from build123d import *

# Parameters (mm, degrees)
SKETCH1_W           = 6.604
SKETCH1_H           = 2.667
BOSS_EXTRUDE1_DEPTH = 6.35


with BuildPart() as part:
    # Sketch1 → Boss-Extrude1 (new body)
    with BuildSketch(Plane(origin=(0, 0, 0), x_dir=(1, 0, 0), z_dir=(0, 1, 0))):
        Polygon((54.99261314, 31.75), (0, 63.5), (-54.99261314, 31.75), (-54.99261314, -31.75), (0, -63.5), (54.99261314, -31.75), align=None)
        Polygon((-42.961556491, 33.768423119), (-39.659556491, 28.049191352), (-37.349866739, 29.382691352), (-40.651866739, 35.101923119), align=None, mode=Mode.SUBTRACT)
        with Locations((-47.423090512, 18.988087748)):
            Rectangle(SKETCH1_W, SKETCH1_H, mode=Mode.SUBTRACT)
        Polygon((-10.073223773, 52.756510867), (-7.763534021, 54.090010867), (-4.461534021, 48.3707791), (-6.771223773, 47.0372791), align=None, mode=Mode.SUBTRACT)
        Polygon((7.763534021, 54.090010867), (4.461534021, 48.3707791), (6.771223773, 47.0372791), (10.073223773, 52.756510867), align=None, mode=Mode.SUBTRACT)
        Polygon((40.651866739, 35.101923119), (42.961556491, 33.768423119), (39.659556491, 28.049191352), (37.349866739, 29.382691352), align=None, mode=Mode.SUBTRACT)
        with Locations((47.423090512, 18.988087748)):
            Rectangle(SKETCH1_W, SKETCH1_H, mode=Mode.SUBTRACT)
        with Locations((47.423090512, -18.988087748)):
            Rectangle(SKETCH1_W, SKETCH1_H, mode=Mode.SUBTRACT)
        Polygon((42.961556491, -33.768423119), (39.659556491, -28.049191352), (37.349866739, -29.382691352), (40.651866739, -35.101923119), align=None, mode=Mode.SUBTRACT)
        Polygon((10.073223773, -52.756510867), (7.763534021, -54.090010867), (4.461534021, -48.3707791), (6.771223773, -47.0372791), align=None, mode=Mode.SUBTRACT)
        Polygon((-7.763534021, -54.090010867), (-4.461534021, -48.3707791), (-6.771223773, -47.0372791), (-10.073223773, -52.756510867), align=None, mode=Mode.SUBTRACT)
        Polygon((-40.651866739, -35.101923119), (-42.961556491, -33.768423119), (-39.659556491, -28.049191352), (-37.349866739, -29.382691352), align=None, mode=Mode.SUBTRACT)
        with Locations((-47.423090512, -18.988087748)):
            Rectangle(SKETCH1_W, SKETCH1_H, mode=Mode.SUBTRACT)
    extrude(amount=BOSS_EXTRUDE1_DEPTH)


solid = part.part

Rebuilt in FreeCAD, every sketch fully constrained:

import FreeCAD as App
import Part
import Sketcher
Q = App.Units.Quantity

doc = App.newDocument("Part")
params = doc.addObject("Spreadsheet::Sheet", "Params")
for row, (alias, value) in enumerate([
    ("sketch1_height", "2.5 in"),
    ("sketch1_width", "0.26 in"),
    ("sketch1_length", "0.26 in"),
    ("sketch1_height2", "0.105 in"),
    ("sketch1_length2", "0.105 in"),
    ("pad1_length", "0.25 in"),
], start=1):
    params.set(f"A{row}", alias)
    params.set(f"B{row}", "=" + value)
    params.setAlias(f"B{row}", alias)

body = doc.addObject("PartDesign::Body", "Body")

# Sketch on XZ plane
sketch1 = doc.addObject("Sketcher::SketchObject", "Sketch")
body.addObject(sketch1)
sketch1.AttachmentSupport = (doc.XZ_Plane, [""])
sketch1.MapMode = "FlatFace"
sketch1.addGeometry([
    Part.LineSegment(App.Vector(55, -31.8, 0), App.Vector(0, -63.5, 0)),  # 0
    Part.LineSegment(App.Vector(0, -63.5, 0), App.Vector(-55, -31.8, 0)),  # 1
    Part.LineSegment(App.Vector(-55, -31.8, 0), App.Vector(-55, 31.8, 0)),  # 2
    Part.LineSegment(App.Vector(-55, 31.8, 0), App.Vector(0, 63.5, 0)),  # 3
    Part.LineSegment(App.Vector(0, 63.5, 0), App.Vector(55, 31.8, 0)),  # 4
    Part.LineSegment(App.Vector(55, 31.8, 0), App.Vector(55, -31.8, 0)),  # 5
    Part.LineSegment(App.Vector(-37.3, 29.4, 0), App.Vector(-40.7, 35.1, 0)),  # 6
    Part.LineSegment(App.Vector(-40.7, 35.1, 0), App.Vector(-43, 33.8, 0)),  # 7
    Part.LineSegment(App.Vector(-43, 33.8, 0), App.Vector(-39.7, 28, 0)),  # 8
    Part.LineSegment(App.Vector(-39.7, 28, 0), App.Vector(-37.3, 29.4, 0)),  # 9
    Part.LineSegment(App.Vector(-4.5, 48.4, 0), App.Vector(-7.8, 54.1, 0)),  # 10
    Part.LineSegment(App.Vector(-7.8, 54.1, 0), App.Vector(-10.1, 52.8, 0)),  # 11
    Part.LineSegment(App.Vector(-10.1, 52.8, 0), App.Vector(-6.8, 47, 0)),  # 12
    Part.LineSegment(App.Vector(-6.8, 47, 0), App.Vector(-4.5, 48.4, 0)),  # 13
    Part.LineSegment(App.Vector(-44.1, 20.3, 0), App.Vector(-50.7, 20.3, 0)),  # 14
    Part.LineSegment(App.Vector(-50.7, 20.3, 0), App.Vector(-50.7, 17.7, 0)),  # 15
    Part.LineSegment(App.Vector(-50.7, 17.7, 0), App.Vector(-44.1, 17.7, 0)),  # 16
    Part.LineSegment(App.Vector(-44.1, 17.7, 0), App.Vector(-44.1, 20.3, 0)),  # 17
    Part.LineSegment(App.Vector(6.8, 47, 0), App.Vector(10.1, 52.8, 0)),  # 18
    Part.LineSegment(App.Vector(10.1, 52.8, 0), App.Vector(7.8, 54.1, 0)),  # 19
    Part.LineSegment(App.Vector(7.8, 54.1, 0), App.Vector(4.5, 48.4, 0)),  # 20
    Part.LineSegment(App.Vector(4.5, 48.4, 0), App.Vector(6.8, 47, 0)),  # 21
    Part.LineSegment(App.Vector(39.7, 28, 0), App.Vector(43, 33.8, 0)),  # 22
    Part.LineSegment(App.Vector(43, 33.8, 0), App.Vector(40.7, 35.1, 0)),  # 23
    Part.LineSegment(App.Vector(40.7, 35.1, 0), App.Vector(37.3, 29.4, 0)),  # 24
    Part.LineSegment(App.Vector(37.3, 29.4, 0), App.Vector(39.7, 28, 0)),  # 25
    Part.LineSegment(App.Vector(50.7, 20.3, 0), App.Vector(44.1, 20.3, 0)),  # 26
    Part.LineSegment(App.Vector(44.1, 20.3, 0), App.Vector(44.1, 17.7, 0)),  # 27
    Part.LineSegment(App.Vector(44.1, 17.7, 0), App.Vector(50.7, 17.7, 0)),  # 28
    Part.LineSegment(App.Vector(50.7, 17.7, 0), App.Vector(50.7, 20.3, 0)),  # 29
    Part.LineSegment(App.Vector(-44.1, -17.7, 0), App.Vector(-50.7, -17.7, 0)),  # 30
    Part.LineSegment(App.Vector(-50.7, -17.7, 0), App.Vector(-50.7, -20.3, 0)),  # 31
    Part.LineSegment(App.Vector(-50.7, -20.3, 0), App.Vector(-44.1, -20.3, 0)),  # 32
    Part.LineSegment(App.Vector(-44.1, -20.3, 0), App.Vector(-44.1, -17.7, 0)),  # 33
    Part.LineSegment(App.Vector(-39.7, -28, 0), App.Vector(-43, -33.8, 0)),  # 34
    Part.LineSegment(App.Vector(-43, -33.8, 0), App.Vector(-40.7, -35.1, 0)),  # 35
    Part.LineSegment(App.Vector(-40.7, -35.1, 0), App.Vector(-37.3, -29.4, 0)),  # 36
    Part.LineSegment(App.Vector(-37.3, -29.4, 0), App.Vector(-39.7, -28, 0)),  # 37
    Part.LineSegment(App.Vector(-6.8, -47, 0), App.Vector(-10.1, -52.8, 0)),  # 38
    Part.LineSegment(App.Vector(-10.1, -52.8, 0), App.Vector(-7.8, -54.1, 0)),  # 39
    Part.LineSegment(App.Vector(-7.8, -54.1, 0), App.Vector(-4.5, -48.4, 0)),  # 40
    Part.LineSegment(App.Vector(-4.5, -48.4, 0), App.Vector(-6.8, -47, 0)),  # 41
    Part.LineSegment(App.Vector(50.7, -17.7, 0), App.Vector(44.1, -17.7, 0)),  # 42
    Part.LineSegment(App.Vector(44.1, -17.7, 0), App.Vector(44.1, -20.3, 0)),  # 43
    Part.LineSegment(App.Vector(44.1, -20.3, 0), App.Vector(50.7, -20.3, 0)),  # 44
    Part.LineSegment(App.Vector(50.7, -20.3, 0), App.Vector(50.7, -17.7, 0)),  # 45
    Part.LineSegment(App.Vector(4.5, -48.4, 0), App.Vector(7.8, -54.1, 0)),  # 46
    Part.LineSegment(App.Vector(7.8, -54.1, 0), App.Vector(10.1, -52.8, 0)),  # 47
    Part.LineSegment(App.Vector(10.1, -52.8, 0), App.Vector(6.8, -47, 0)),  # 48
    Part.LineSegment(App.Vector(6.8, -47, 0), App.Vector(4.5, -48.4, 0)),  # 49
    Part.LineSegment(App.Vector(37.3, -29.4, 0), App.Vector(40.7, -35.1, 0)),  # 50
    Part.LineSegment(App.Vector(40.7, -35.1, 0), App.Vector(43, -33.8, 0)),  # 51
    Part.LineSegment(App.Vector(43, -33.8, 0), App.Vector(39.7, -28, 0)),  # 52
    Part.LineSegment(App.Vector(39.7, -28, 0), App.Vector(37.3, -29.4, 0)),  # 53
], False)
sketch1.addConstraint([
    Sketcher.Constraint("Coincident", 0, 2, 1, 1),
    Sketcher.Constraint("Coincident", 1, 2, 2, 1),
    Sketcher.Constraint("Coincident", 2, 2, 3, 1),
    Sketcher.Constraint("Coincident", 3, 2, 4, 1),
    Sketcher.Constraint("Coincident", 4, 2, 5, 1),
    Sketcher.Constraint("Coincident", 5, 2, 0, 1),
    Sketcher.Constraint("Coincident", 6, 2, 7, 1),
    Sketcher.Constraint("Coincident", 7, 2, 8, 1),
    Sketcher.Constraint("Coincident", 8, 2, 9, 1),
    Sketcher.Constraint("Coincident", 9, 2, 6, 1),
    Sketcher.Constraint("Coincident", 10, 2, 11, 1),
    Sketcher.Constraint("Coincident", 11, 2, 12, 1),
    Sketcher.Constraint("Coincident", 12, 2, 13, 1),
    Sketcher.Constraint("Coincident", 13, 2, 10, 1),
    Sketcher.Constraint("Coincident", 14, 2, 15, 1),
    Sketcher.Constraint("Coincident", 15, 2, 16, 1),
    Sketcher.Constraint("Coincident", 16, 2, 17, 1),
    Sketcher.Constraint("Coincident", 17, 2, 14, 1),
    Sketcher.Constraint("Coincident", 18, 2, 19, 1),
    Sketcher.Constraint("Coincident", 19, 2, 20, 1),
    Sketcher.Constraint("Coincident", 20, 2, 21, 1),
    Sketcher.Constraint("Coincident", 21, 2, 18, 1),
    Sketcher.Constraint("Coincident", 22, 2, 23, 1),
    Sketcher.Constraint("Coincident", 23, 2, 24, 1),
    Sketcher.Constraint("Coincident", 24, 2, 25, 1),
    Sketcher.Constraint("Coincident", 25, 2, 22, 1),
    Sketcher.Constraint("Coincident", 26, 2, 27, 1),
    Sketcher.Constraint("Coincident", 27, 2, 28, 1),
    Sketcher.Constraint("Coincident", 28, 2, 29, 1),
    Sketcher.Constraint("Coincident", 29, 2, 26, 1),
    Sketcher.Constraint("Coincident", 30, 2, 31, 1),
    Sketcher.Constraint("Coincident", 31, 2, 32, 1),
    Sketcher.Constraint("Coincident", 32, 2, 33, 1),
    Sketcher.Constraint("Coincident", 33, 2, 30, 1),
    Sketcher.Constraint("Coincident", 34, 2, 35, 1),
    Sketcher.Constraint("Coincident", 35, 2, 36, 1),
    Sketcher.Constraint("Coincident", 36, 2, 37, 1),
    Sketcher.Constraint("Coincident", 37, 2, 34, 1),
    Sketcher.Constraint("Coincident", 38, 2, 39, 1),
    Sketcher.Constraint("Coincident", 39, 2, 40, 1),
    Sketcher.Constraint("Coincident", 40, 2, 41, 1),
    Sketcher.Constraint("Coincident", 41, 2, 38, 1),
    Sketcher.Constraint("Coincident", 42, 2, 43, 1),
    Sketcher.Constraint("Coincident", 43, 2, 44, 1),
    Sketcher.Constraint("Coincident", 44, 2, 45, 1),
    Sketcher.Constraint("Coincident", 45, 2, 42, 1),
    Sketcher.Constraint("Coincident", 46, 2, 47, 1),
    Sketcher.Constraint("Coincident", 47, 2, 48, 1),
    Sketcher.Constraint("Coincident", 48, 2, 49, 1),
    Sketcher.Constraint("Coincident", 49, 2, 46, 1),
    Sketcher.Constraint("Coincident", 50, 2, 51, 1),
    Sketcher.Constraint("Coincident", 51, 2, 52, 1),
    Sketcher.Constraint("Coincident", 52, 2, 53, 1),
    Sketcher.Constraint("Coincident", 53, 2, 50, 1),
    Sketcher.Constraint("Vertical", 2),
    Sketcher.Constraint("Vertical", 5),
    Sketcher.Constraint("Horizontal", 14),
    Sketcher.Constraint("Vertical", 15),
    Sketcher.Constraint("Horizontal", 16),
    Sketcher.Constraint("Vertical", 17),
    Sketcher.Constraint("Horizontal", 26),
    Sketcher.Constraint("Vertical", 27),
    Sketcher.Constraint("Horizontal", 28),
    Sketcher.Constraint("Vertical", 29),
    Sketcher.Constraint("Horizontal", 30),
    Sketcher.Constraint("Vertical", 31),
    Sketcher.Constraint("Horizontal", 32),
    Sketcher.Constraint("Vertical", 33),
    Sketcher.Constraint("Horizontal", 42),
    Sketcher.Constraint("Vertical", 43),
    Sketcher.Constraint("Horizontal", 44),
    Sketcher.Constraint("Vertical", 45),
    Sketcher.Constraint("Symmetric", 0, 2, 3, 2, -1, 1),
    Sketcher.Constraint("Symmetric", 1, 2, 4, 2, -1, 1),
    Sketcher.Constraint("Symmetric", 28, 2, 30, 2, -1, 1),
    Sketcher.Constraint("Symmetric", 26, 2, 32, 2, -1, 1),
    Sketcher.Constraint("Symmetric", 22, 2, 34, 2, -1, 1),
    Sketcher.Constraint("Symmetric", 23, 2, 35, 2, -1, 1),
    Sketcher.Constraint("Symmetric", 24, 2, 36, 2, -1, 1),
    Sketcher.Constraint("Symmetric", 25, 2, 37, 2, -1, 1),
    Sketcher.Constraint("Symmetric", 18, 2, 38, 2, -1, 1),
    Sketcher.Constraint("Symmetric", 19, 2, 39, 2, -1, 1),
    Sketcher.Constraint("Symmetric", 20, 2, 40, 2, -1, 1),
    Sketcher.Constraint("Symmetric", 21, 2, 41, 2, -1, 1),
    Sketcher.Constraint("Symmetric", 16, 2, 42, 2, -1, 1),
    Sketcher.Constraint("Symmetric", 14, 2, 44, 2, -1, 1),
    Sketcher.Constraint("Symmetric", 10, 2, 46, 2, -1, 1),
    Sketcher.Constraint("Symmetric", 11, 2, 47, 2, -1, 1),
    Sketcher.Constraint("Symmetric", 12, 2, 48, 2, -1, 1),
    Sketcher.Constraint("Symmetric", 13, 2, 49, 2, -1, 1),
    Sketcher.Constraint("Symmetric", 6, 2, 50, 2, -1, 1),
    Sketcher.Constraint("Symmetric", 7, 2, 51, 2, -1, 1),
    Sketcher.Constraint("Symmetric", 8, 2, 52, 2, -1, 1),
    Sketcher.Constraint("Symmetric", 9, 2, 53, 2, -1, 1),
    Sketcher.Constraint("Symmetric", 11, 2, 18, 2, -2),
    Sketcher.Constraint("Symmetric", 10, 2, 19, 2, -2),
    Sketcher.Constraint("Symmetric", 13, 2, 20, 2, -2),
    Sketcher.Constraint("Symmetric", 12, 2, 21, 2, -2),
    Sketcher.Constraint("Symmetric", 7, 2, 22, 2, -2),
    Sketcher.Constraint("Symmetric", 6, 2, 23, 2, -2),
    Sketcher.Constraint("Symmetric", 9, 2, 24, 2, -2),
    Sketcher.Constraint("Symmetric", 8, 2, 25, 2, -2),
    Sketcher.Constraint("Symmetric", 17, 2, 26, 2, -2),
    Sketcher.Constraint("Symmetric", 15, 2, 28, 2, -2),
    Sketcher.Constraint("PointOnObject", 0, 2, -2),
    Sketcher.Constraint("Parallel", 0, 3),
    Sketcher.Constraint("Perpendicular", 3, 6),
    Sketcher.Constraint("Perpendicular", 6, 7),
    Sketcher.Constraint("Perpendicular", 7, 8),
    Sketcher.Constraint("Perpendicular", 8, 9),
    Sketcher.Constraint("Perpendicular", 9, 10),
    Sketcher.Constraint("Perpendicular", 10, 11),
    Sketcher.Constraint("Perpendicular", 11, 12),
    Sketcher.Constraint("Perpendicular", 12, 13),
    Sketcher.Constraint("Perpendicular", 4, 18),
    Sketcher.Constraint("Equal", 8, 10),
    Sketcher.Constraint("Equal", 9, 11),
    Sketcher.Constraint("DistanceY", 2, 1, 2, 2, Q("2.5 in")),
    Sketcher.Constraint("Angle", 0, Q("-150 deg")),
    Sketcher.Constraint("DistanceY", 0, 2, 3, 2, Q("5 in")),
    Sketcher.Constraint("DistanceX", 14, 2, 14, 1, Q("0.26 in")),
    Sketcher.Constraint("Distance", 6, Q("0.26 in")),
    Sketcher.Constraint("DistanceY", 15, 2, 15, 1, Q("0.105 in")),
    Sketcher.Constraint("Distance", 7, Q("0.105 in")),
    Sketcher.Constraint("DistanceX", 7, 2, -1, 1, Q("1.6913999 in")),
    Sketcher.Constraint("DistanceY", -1, 1, 8, 2, 28.049191),
    Sketcher.Constraint("DistanceY", -1, 1, 10, 2, 54.090011),
    Sketcher.Constraint("DistanceX", 14, 2, -1, 1, 50.725091),
    Sketcher.Constraint("DistanceX", 13, 2, 19, 2, 12.225068),
    Sketcher.Constraint("DistanceY", -1, 1, 14, 2, 20.321588),
])
sketch1.setExpression("Constraints[117]", "Params.sketch1_height")
sketch1.setExpression("Constraints[120]", "Params.sketch1_width")
sketch1.setExpression("Constraints[121]", "Params.sketch1_length")
sketch1.setExpression("Constraints[122]", "Params.sketch1_height2")
sketch1.setExpression("Constraints[123]", "Params.sketch1_length2")
pad1 = doc.addObject("PartDesign::Pad", "Pad")
body.addObject(pad1)
pad1.Profile = sketch1
pad1.setExpression("Length", "Params.pad1_length")
pad1.Reversed = True

doc.recompute()
